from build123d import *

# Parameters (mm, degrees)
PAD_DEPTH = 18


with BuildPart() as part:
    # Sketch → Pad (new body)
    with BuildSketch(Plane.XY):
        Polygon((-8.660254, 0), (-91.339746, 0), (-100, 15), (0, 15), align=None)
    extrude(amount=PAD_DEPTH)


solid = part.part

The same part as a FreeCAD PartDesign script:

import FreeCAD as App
import Part
import Sketcher
from FreeCAD import Vector
Q = App.Units.Quantity


def add_polygon(sketch, points):
    """Adds a closed chain of lines whose ends are joined by coincident constraints."""
    first, n = sketch.GeometryCount, len(points)
    for a, b in zip(points, points[1:] + points[:1]):
        sketch.addGeometry(Part.LineSegment(App.Vector(*a, 0), App.Vector(*b, 0)), False)
    for i in range(n):
        sketch.addConstraint(Sketcher.Constraint("Coincident", first + i, 2, first + (i + 1) % n, 1))

doc = App.newDocument("Part")
body = doc.addObject("PartDesign::Body", "Body")

# Sketch on XY plane
sketch1 = doc.addObject("Sketcher::SketchObject", "Sketch")
body.addObject(sketch1)
sketch1.AttachmentSupport = (doc.XY_Plane, [""])
sketch1.MapMode = "FlatFace"
add_polygon(sketch1, [(-91, 0), (-9, 0), (0, 15), (-100, 15)])  # lines 0-3
sketch1.addConstraint(Sketcher.Constraint("Horizontal", 0))
sketch1.addConstraint(Sketcher.Constraint("Horizontal", 2))
sketch1.addConstraint(Sketcher.Constraint("PointOnObject", 0, 2, -1))
sketch1.addConstraint(Sketcher.Constraint("PointOnObject", 1, 2, -2))
sketch1.addConstraint(Sketcher.Constraint("Equal", 1, 3))
sketch1.addConstraint(Sketcher.Constraint("DistanceX", 2, 2, 2, 1, 100.0))
sketch1.addConstraint(Sketcher.Constraint("Angle", 1, Q("60 deg")))
sketch1.addConstraint(Sketcher.Constraint("DistanceY", -1, 1, 1, 2, 15.0))
pad1 = doc.addObject("PartDesign::Pad", "Pad")
body.addObject(pad1)
pad1.Profile = sketch1
pad1.Length = 18

doc.recompute()
